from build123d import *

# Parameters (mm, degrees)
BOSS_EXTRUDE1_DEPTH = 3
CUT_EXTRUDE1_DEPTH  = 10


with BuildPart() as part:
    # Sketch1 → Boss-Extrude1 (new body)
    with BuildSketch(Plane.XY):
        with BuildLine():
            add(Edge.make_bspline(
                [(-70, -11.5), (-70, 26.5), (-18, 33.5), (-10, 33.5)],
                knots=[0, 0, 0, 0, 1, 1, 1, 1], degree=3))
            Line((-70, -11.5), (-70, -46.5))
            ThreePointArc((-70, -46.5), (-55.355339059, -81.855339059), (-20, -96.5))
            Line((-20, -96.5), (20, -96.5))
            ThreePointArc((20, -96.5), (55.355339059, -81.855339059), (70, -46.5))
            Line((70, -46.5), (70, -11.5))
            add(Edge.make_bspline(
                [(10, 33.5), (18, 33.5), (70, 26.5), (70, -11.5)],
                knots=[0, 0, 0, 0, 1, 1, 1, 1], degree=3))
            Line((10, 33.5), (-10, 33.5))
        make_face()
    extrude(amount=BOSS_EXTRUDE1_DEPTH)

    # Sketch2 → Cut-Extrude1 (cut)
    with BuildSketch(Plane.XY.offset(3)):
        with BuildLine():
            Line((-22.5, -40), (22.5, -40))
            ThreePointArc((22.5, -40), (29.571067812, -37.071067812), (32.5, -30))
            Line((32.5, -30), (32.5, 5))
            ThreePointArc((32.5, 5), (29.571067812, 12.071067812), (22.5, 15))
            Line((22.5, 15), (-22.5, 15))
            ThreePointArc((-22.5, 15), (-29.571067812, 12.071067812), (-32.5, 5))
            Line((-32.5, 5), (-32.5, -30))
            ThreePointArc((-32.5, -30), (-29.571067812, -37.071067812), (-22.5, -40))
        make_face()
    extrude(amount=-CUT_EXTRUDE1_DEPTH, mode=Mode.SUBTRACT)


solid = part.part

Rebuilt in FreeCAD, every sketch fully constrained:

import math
import FreeCAD as App
import Part
import Sketcher

doc = App.newDocument("Part")
body = doc.addObject("PartDesign::Body", "Body")

# Sketch on XY plane
sketch1 = body.newObject("Sketcher::SketchObject", "Sketch")
sketch1.AttachmentSupport = (doc.getObject("XY_Plane"), [""])
sketch1.MapMode = "FlatFace"
sketch1.addGeometry([
    Part.BSplineCurve([App.Vector(-70, -11.5, 0), App.Vector(-70, 26.5, 0), App.Vector(-18, 33.5, 0), App.Vector(-10, 33.5, 0)], [4, 4], [0, 1], False, 3, [1, 1, 1, 1], False),  # 0
    Part.LineSegment(App.Vector(-70, -11.5, 0), App.Vector(-70, -46.5, 0)),  # 1
    Part.ArcOfCircle(Part.Circle(App.Vector(-20, -46.5, 0), App.Vector(0, 0, 1), 50), math.radians(-180), math.radians(-90)),  # 2
    Part.LineSegment(App.Vector(-20, -96.5, 0), App.Vector(20, -96.5, 0)),  # 3
    Part.ArcOfCircle(Part.Circle(App.Vector(20, -46.5, 0), App.Vector(0, 0, 1), 50), math.radians(-90), math.radians(0)),  # 4
    Part.LineSegment(App.Vector(70, -46.5, 0), App.Vector(70, -11.5, 0)),  # 5
    Part.BSplineCurve([App.Vector(10, 33.5, 0), App.Vector(18, 33.5, 0), App.Vector(70, 26.5, 0), App.Vector(70, -11.5, 0)], [4, 4], [0, 1], False, 3, [1, 1, 1, 1], False),  # 6
    Part.LineSegment(App.Vector(10, 33.5, 0), App.Vector(-10, 33.5, 0)),  # 7
], False)
sketch1.addConstraint([
    Sketcher.Constraint("Block", 0),
    Sketcher.Constraint("Block", 6),
    Sketcher.Constraint("Coincident", 0, 1, 1, 1),
    Sketcher.Constraint("Tangent", 1, 2, 2, 1),
    Sketcher.Constraint("Tangent", 2, 2, 3, 1),
    Sketcher.Constraint("Tangent", 3, 2, 4, 1),
    Sketcher.Constraint("Tangent", 4, 2, 5, 1),
    Sketcher.Constraint("Coincident", 5, 2, 6, 2),
    Sketcher.Constraint("Coincident", 6, 1, 7, 1),
    Sketcher.Constraint("Coincident", 7, 2, 0, 2),
    Sketcher.Constraint("Vertical", 1),
    Sketcher.Constraint("Horizontal", 3),
    Sketcher.Constraint("Vertical", 5),
    Sketcher.Constraint("Equal", 2, 4),
    Sketcher.Constraint("Radius", 2, 50.0),
    Sketcher.Constraint("DistanceY", 1, 2, 1, 1, 35.0),
])
pad1 = body.newObject("PartDesign::Pad", "Pad")
pad1.Profile = sketch1
pad1.Length = 3

# Sketch on XY plane
sketch2 = body.newObject("Sketcher::SketchObject", "Sketch001")
sketch2.AttachmentSupport = (doc.getObject("XY_Plane"), [""])
sketch2.MapMode = "FlatFace"
sketch2.AttachmentOffset = App.Placement(App.Vector(0, 0, 3), App.Rotation())
sketch2.addGeometry([
    Part.LineSegment(App.Vector(-22, -40, 0), App.Vector(22, -40, 0)),  # 0
    Part.ArcOfCircle(Part.Circle(App.Vector(22, -30, 0), App.Vector(0, 0, 1), 10), math.radians(-90), math.radians(0)),  # 1
    Part.LineSegment(App.Vector(32, -30, 0), App.Vector(32, 5, 0)),  # 2
    Part.ArcOfCircle(Part.Circle(App.Vector(22, 5, 0), App.Vector(0, 0, 1), 10), math.radians(0), math.radians(90)),  # 3
    Part.LineSegment(App.Vector(22, 15, 0), App.Vector(-22, 15, 0)),  # 4
    Part.ArcOfCircle(Part.Circle(App.Vector(-22, 5, 0), App.Vector(0, 0, 1), 10), math.radians(90), math.radians(180)),  # 5
    Part.LineSegment(App.Vector(-32, 5, 0), App.Vector(-32, -30, 0)),  # 6
    Part.ArcOfCircle(Part.Circle(App.Vector(-22, -30, 0), App.Vector(0, 0, 1), 10), math.radians(180), math.radians(270)),  # 7
], False)
sketch2.addConstraint([
    Sketcher.Constraint("Tangent", 0, 2, 1, 1),
    Sketcher.Constraint("Tangent", 1, 2, 2, 1),
    Sketcher.Constraint("Tangent", 2, 2, 3, 1),
    Sketcher.Constraint("Tangent", 3, 2, 4, 1),
    Sketcher.Constraint("Tangent", 4, 2, 5, 1),
    Sketcher.Constraint("Tangent", 5, 2, 6, 1),
    Sketcher.Constraint("Tangent", 6, 2, 7, 1),
    Sketcher.Constraint("Tangent", 7, 2, 0, 1),
    Sketcher.Constraint("Horizontal", 0),
    Sketcher.Constraint("Vertical", 2),
    Sketcher.Constraint("Horizontal", 4),
    Sketcher.Constraint("Vertical", 6),
    Sketcher.Constraint("Equal", 1, 3),
    Sketcher.Constraint("Equal", 3, 5),
    Sketcher.Constraint("Equal", 5, 7),
    Sketcher.Constraint("Radius", 1, 10.0),
    Sketcher.Constraint("DistanceX", 0, 1, 0, 2, 45.0),
    Sketcher.Constraint("DistanceY", 2, 1, 2, 2, 35.0),
    Sketcher.Constraint("DistanceY", 1, 3, -1, 1, 30.0),
    Sketcher.Constraint("DistanceX", -1, 1, 1, 3, 22.5),
])
pocket1 = body.newObject("PartDesign::Pocket", "Pocket")
pocket1.Profile = sketch2
pocket1.Length = 10

doc.recompute()
